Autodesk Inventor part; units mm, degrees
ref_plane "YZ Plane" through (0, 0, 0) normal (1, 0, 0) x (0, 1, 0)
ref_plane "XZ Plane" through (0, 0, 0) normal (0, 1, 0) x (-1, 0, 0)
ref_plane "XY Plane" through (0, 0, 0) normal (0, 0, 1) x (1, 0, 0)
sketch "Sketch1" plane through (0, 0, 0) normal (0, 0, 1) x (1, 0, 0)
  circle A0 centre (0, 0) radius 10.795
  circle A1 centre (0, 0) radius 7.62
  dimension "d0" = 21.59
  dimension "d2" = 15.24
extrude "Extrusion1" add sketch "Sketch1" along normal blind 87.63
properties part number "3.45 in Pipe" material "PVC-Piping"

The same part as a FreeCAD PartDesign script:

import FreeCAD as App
import Part
import Sketcher
from FreeCAD import Vector
Q = App.Units.Quantity

doc = App.newDocument("Part")
params = doc.addObject("Spreadsheet::Sheet", "Params")
for row, (alias, value) in enumerate([
    ("sketch1_diameter", "0.6 in"),
    ("sketch1_diameter2", "0.85 in"),
    ("pad1_length", "3.45 in"),
], start=1):
    params.set(f"A{row}", alias)
    params.set(f"B{row}", "=" + value)
    params.setAlias(f"B{row}", alias)

body = doc.addObject("PartDesign::Body", "Body")

# Sketch on XY plane
sketch1 = body.newObject("Sketcher::SketchObject", "Sketch")
sketch1.AttachmentSupport = (doc.getObject("XY_Plane"), [""])
sketch1.MapMode = "FlatFace"
sketch1.addGeometry(Part.Circle(Vector(0, 0, 0), Vector(0, 0, 1), 11), False)
sketch1.addGeometry(Part.Circle(Vector(0, 0, 0), Vector(0, 0, 1), 8), False)
sketch1.addConstraint(Sketcher.Constraint("Coincident", 0, 3, -1, 1))
sketch1.addConstraint(Sketcher.Constraint("Coincident", 1, 3, -1, 1))
sketch1.addConstraint(Sketcher.Constraint("Diameter", 1, Q("0.6 in")))
sketch1.addConstraint(Sketcher.Constraint("Diameter", 0, Q("0.85 in")))
sketch1.setExpression("Constraints[2]", "Params.sketch1_diameter")
sketch1.setExpression("Constraints[3]", "Params.sketch1_diameter2")
pad1 = body.newObject("PartDesign::Pad", "Pad")
pad1.Profile = sketch1
pad1.setExpression("Length", "Params.pad1_length")

doc.recompute()
